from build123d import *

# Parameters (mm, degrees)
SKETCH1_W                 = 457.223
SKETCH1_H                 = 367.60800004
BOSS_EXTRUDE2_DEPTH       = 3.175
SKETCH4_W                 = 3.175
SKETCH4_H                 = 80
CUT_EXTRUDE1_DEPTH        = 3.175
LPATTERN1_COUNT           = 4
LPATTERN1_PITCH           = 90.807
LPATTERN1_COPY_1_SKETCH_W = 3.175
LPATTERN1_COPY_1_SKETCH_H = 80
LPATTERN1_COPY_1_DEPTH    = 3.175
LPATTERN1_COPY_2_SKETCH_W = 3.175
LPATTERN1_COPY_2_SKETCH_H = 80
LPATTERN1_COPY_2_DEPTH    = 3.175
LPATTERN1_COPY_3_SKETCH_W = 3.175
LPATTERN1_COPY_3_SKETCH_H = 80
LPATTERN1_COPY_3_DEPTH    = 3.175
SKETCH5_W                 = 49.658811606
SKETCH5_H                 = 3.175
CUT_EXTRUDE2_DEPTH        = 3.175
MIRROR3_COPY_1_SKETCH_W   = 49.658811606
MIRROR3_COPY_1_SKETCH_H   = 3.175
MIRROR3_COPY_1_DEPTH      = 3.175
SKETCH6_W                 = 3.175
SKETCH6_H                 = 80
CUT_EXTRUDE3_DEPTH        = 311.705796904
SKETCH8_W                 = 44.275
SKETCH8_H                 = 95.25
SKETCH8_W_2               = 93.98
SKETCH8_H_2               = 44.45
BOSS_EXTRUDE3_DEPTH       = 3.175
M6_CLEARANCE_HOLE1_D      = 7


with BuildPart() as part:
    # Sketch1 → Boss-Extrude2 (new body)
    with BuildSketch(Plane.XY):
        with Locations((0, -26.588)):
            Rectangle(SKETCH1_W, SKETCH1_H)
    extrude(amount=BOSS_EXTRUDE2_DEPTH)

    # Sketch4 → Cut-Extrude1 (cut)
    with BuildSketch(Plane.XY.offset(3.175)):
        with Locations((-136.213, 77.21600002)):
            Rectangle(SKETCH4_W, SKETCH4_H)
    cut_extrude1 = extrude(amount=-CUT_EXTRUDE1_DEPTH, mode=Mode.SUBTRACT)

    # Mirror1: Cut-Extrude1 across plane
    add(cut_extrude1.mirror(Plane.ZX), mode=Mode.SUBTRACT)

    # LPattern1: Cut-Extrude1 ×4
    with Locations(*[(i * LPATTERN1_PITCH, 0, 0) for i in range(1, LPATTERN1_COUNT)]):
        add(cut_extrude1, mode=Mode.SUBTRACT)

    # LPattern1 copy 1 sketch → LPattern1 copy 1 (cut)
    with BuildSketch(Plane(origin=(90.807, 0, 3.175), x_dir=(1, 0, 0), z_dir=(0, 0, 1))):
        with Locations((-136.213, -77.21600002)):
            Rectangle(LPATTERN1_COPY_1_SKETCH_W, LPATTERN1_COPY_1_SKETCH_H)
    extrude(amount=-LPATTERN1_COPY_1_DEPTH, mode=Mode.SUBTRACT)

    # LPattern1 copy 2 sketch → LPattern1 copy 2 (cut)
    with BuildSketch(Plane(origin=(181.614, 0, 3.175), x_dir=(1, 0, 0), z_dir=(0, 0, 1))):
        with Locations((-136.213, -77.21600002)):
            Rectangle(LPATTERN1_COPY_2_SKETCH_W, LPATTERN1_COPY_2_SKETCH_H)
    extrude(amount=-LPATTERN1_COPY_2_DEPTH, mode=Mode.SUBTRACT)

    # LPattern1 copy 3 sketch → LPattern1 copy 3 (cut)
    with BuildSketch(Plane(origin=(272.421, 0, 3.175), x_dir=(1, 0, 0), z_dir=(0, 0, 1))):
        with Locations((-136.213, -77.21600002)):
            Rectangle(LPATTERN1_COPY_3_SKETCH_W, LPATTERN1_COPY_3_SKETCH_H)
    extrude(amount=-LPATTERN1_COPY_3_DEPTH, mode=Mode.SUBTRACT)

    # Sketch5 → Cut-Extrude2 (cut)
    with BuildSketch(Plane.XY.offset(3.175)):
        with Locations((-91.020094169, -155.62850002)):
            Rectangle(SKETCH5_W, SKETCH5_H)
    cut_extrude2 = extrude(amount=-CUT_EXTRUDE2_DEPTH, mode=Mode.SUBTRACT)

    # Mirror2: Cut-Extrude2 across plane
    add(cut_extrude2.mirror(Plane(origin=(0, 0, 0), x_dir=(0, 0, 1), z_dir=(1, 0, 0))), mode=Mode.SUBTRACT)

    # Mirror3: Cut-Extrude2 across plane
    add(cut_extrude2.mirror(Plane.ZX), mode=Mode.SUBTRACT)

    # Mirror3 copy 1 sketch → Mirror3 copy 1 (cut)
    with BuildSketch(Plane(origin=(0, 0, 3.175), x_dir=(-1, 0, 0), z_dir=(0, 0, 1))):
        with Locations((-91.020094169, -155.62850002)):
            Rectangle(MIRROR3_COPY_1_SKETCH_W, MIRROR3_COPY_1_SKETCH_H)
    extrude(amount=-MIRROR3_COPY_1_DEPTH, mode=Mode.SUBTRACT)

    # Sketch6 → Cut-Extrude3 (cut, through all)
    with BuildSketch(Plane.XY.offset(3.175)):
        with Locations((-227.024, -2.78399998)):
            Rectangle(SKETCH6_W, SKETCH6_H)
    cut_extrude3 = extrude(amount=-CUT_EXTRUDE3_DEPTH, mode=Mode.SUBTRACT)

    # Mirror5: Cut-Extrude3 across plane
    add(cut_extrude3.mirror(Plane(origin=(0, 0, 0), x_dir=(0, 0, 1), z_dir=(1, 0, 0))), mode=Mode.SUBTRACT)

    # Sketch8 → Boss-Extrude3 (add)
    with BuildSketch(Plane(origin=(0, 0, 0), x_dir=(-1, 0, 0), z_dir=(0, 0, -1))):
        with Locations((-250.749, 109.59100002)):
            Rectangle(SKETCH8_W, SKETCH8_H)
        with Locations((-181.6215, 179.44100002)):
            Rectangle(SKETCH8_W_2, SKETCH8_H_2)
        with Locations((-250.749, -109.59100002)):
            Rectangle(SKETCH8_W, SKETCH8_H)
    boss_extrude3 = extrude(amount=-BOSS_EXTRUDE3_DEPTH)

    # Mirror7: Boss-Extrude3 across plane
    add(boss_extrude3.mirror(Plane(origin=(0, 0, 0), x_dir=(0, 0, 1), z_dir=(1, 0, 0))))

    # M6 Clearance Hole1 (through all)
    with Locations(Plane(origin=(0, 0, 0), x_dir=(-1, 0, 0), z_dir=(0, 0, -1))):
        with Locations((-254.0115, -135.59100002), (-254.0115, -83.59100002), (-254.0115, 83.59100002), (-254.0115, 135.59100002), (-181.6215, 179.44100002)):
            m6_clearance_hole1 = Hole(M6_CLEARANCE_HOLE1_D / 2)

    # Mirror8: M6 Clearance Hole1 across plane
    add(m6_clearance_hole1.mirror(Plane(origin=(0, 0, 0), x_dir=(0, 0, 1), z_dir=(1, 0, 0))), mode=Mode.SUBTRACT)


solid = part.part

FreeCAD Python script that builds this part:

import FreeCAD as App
import Part
import Sketcher
from FreeCAD import Vector
Q = App.Units.Quantity

doc = App.newDocument("Part")
body = doc.addObject("PartDesign::Body", "Body")

# Sketch on XY plane
sketch1 = body.newObject("Sketcher::SketchObject", "Sketch")
sketch1.AttachmentSupport = (doc.getObject("XY_Plane"), [""])
sketch1.MapMode = "FlatFace"
sketch1.addGeometry(Part.LineSegment(Vector(-228.6115, 157.216, 0), Vector(-228.6115, -210.392, 0)), False)
sketch1.addGeometry(Part.LineSegment(Vector(-228.6115, -210.392, 0), Vector(228.6115, -210.392, 0)), False)
sketch1.addGeometry(Part.LineSegment(Vector(228.6115, -210.392, 0), Vector(228.6115, 157.216, 0)), False)
sketch1.addGeometry(Part.LineSegment(Vector(228.6115, 157.216, 0), Vector(-228.6115, 157.216, 0)), False)
sketch1.addConstraint(Sketcher.Constraint("Coincident", 0, 2, 1, 1))
sketch1.addConstraint(Sketcher.Constraint("Coincident", 1, 2, 2, 1))
sketch1.addConstraint(Sketcher.Constraint("Coincident", 2, 2, 3, 1))
sketch1.addConstraint(Sketcher.Constraint("Coincident", 3, 2, 0, 1))
sketch1.addConstraint(Sketcher.Constraint("Vertical", 0))
sketch1.addConstraint(Sketcher.Constraint("Horizontal", 1))
sketch1.addConstraint(Sketcher.Constraint("Vertical", 2))
sketch1.addConstraint(Sketcher.Constraint("Horizontal", 3))
sketch1.addConstraint(Sketcher.Constraint("DistanceX", 1, 1, 1, 2, 457.223))
sketch1.addConstraint(Sketcher.Constraint("DistanceY", 0, 2, 0, 1, 367.608))
sketch1.addConstraint(Sketcher.Constraint("DistanceX", 0, 2, -1, 1, 228.6115))
sketch1.addConstraint(Sketcher.Constraint("DistanceY", 0, 2, -1, 1, 210.392))
pad1 = body.newObject("PartDesign::Pad", "Pad")
pad1.Profile = sketch1
pad1.Length = Q("0.125 in")

# Sketch on XY plane
sketch2 = body.newObject("Sketcher::SketchObject", "Sketch001")
sketch2.AttachmentSupport = (doc.getObject("XY_Plane"), [""])
sketch2.MapMode = "FlatFace"
sketch2.AttachmentOffset = App.Placement(Vector(0, 0, 0.125 * 25.4), App.Rotation())
sketch2.addGeometry(Part.LineSegment(Vector(-137.8005, 117.216, 0), Vector(-137.8005, 37.216, 0)), False)
sketch2.addGeometry(Part.LineSegment(Vector(-137.8005, 37.216, 0), Vector(-134.6255, 37.216, 0)), False)
sketch2.addGeometry(Part.LineSegment(Vector(-134.6255, 37.216, 0), Vector(-134.6255, 117.216, 0)), False)
sketch2.addGeometry(Part.LineSegment(Vector(-134.6255, 117.216, 0), Vector(-137.8005, 117.216, 0)), False)
sketch2.addConstraint(Sketcher.Constraint("Coincident", 0, 2, 1, 1))
sketch2.addConstraint(Sketcher.Constraint("Coincident", 1, 2, 2, 1))
sketch2.addConstraint(Sketcher.Constraint("Coincident", 2, 2, 3, 1))
sketch2.addConstraint(Sketcher.Constraint("Coincident", 3, 2, 0, 1))
sketch2.addConstraint(Sketcher.Constraint("Vertical", 0))
sketch2.addConstraint(Sketcher.Constraint("Horizontal", 1))
sketch2.addConstraint(Sketcher.Constraint("Vertical", 2))
sketch2.addConstraint(Sketcher.Constraint("Horizontal", 3))
sketch2.addConstraint(Sketcher.Constraint("DistanceX", 1, 1, 1, 2, Q("0.125 in")))
sketch2.addConstraint(Sketcher.Constraint("DistanceY", 0, 2, 0, 1, 80.0))
sketch2.addConstraint(Sketcher.Constraint("DistanceX", 0, 2, -1, 1, 137.8005))
sketch2.addConstraint(Sketcher.Constraint("DistanceY", -1, 1, 0, 2, 37.216))
pocket1 = body.newObject("PartDesign::Pocket", "Pocket")
pocket1.Profile = sketch2
pocket1.Length = Q("0.125 in")
doc.recompute()

mirrored = body.newObject("PartDesign::Mirrored", "Mirrored")
mirrored.Originals = [pocket1]
mirrored.MirrorPlane = (doc.getObject("XZ_Plane"), [""])
body.Tip = mirrored
doc.recompute()

linearpattern = body.newObject("PartDesign::LinearPattern", "LinearPattern")
linearpattern.Originals = [pocket1]
linearpattern.Direction = (doc.getObject("X_Axis"), [""])
linearpattern.Mode = "offset"
linearpattern.Offset = 90.807
linearpattern.Occurrences = 4
body.Tip = linearpattern

# Sketch on XY plane
sketch3 = body.newObject("Sketcher::SketchObject", "Sketch002")
sketch3.AttachmentSupport = (doc.getObject("XY_Plane"), [""])
sketch3.MapMode = "FlatFace"
sketch3.AttachmentOffset = App.Placement(Vector(0, 0, 0.125 * 25.4), App.Rotation())
sketch3.addGeometry(Part.LineSegment(Vector(-46.9935, -37.216, 0), Vector(-46.9935, -117.216, 0)), False)
sketch3.addGeometry(Part.LineSegment(Vector(-46.9935, -117.216, 0), Vector(-43.8185, -117.216, 0)), False)
sketch3.addGeometry(Part.LineSegment(Vector(-43.8185, -117.216, 0), Vector(-43.8185, -37.216, 0)), False)
sketch3.addGeometry(Part.LineSegment(Vector(-43.8185, -37.216, 0), Vector(-46.9935, -37.216, 0)), False)
sketch3.addConstraint(Sketcher.Constraint("Coincident", 0, 2, 1, 1))
sketch3.addConstraint(Sketcher.Constraint("Coincident", 1, 2, 2, 1))
sketch3.addConstraint(Sketcher.Constraint("Coincident", 2, 2, 3, 1))
sketch3.addConstraint(Sketcher.Constraint("Coincident", 3, 2, 0, 1))
sketch3.addConstraint(Sketcher.Constraint("Vertical", 0))
sketch3.addConstraint(Sketcher.Constraint("Horizontal", 1))
sketch3.addConstraint(Sketcher.Constraint("Vertical", 2))
sketch3.addConstraint(Sketcher.Constraint("Horizontal", 3))
sketch3.addConstraint(Sketcher.Constraint("DistanceX", 1, 1, 1, 2, Q("0.125 in")))
sketch3.addConstraint(Sketcher.Constraint("DistanceY", 0, 2, 0, 1, 80.0))
sketch3.addConstraint(Sketcher.Constraint("DistanceX", 0, 2, -1, 1, 46.9935))
sketch3.addConstraint(Sketcher.Constraint("DistanceY", 0, 2, -1, 1, 117.216))
pocket2 = body.newObject("PartDesign::Pocket", "Pocket001")
pocket2.Profile = sketch3
pocket2.Length = Q("0.125 in")

# Sketch on XY plane
sketch4 = body.newObject("Sketcher::SketchObject", "Sketch003")
sketch4.AttachmentSupport = (doc.getObject("XY_Plane"), [""])
sketch4.MapMode = "FlatFace"
sketch4.AttachmentOffset = App.Placement(Vector(0, 0, 0.125 * 25.4), App.Rotation())
sketch4.addGeometry(Part.LineSegment(Vector(43.8135, -37.216, 0), Vector(43.8135, -117.216, 0)), False)
sketch4.addGeometry(Part.LineSegment(Vector(43.8135, -117.216, 0), Vector(46.9885, -117.216, 0)), False)
sketch4.addGeometry(Part.LineSegment(Vector(46.9885, -117.216, 0), Vector(46.9885, -37.216, 0)), False)
sketch4.addGeometry(Part.LineSegment(Vector(46.9885, -37.216, 0), Vector(43.8135, -37.216, 0)), False)
sketch4.addConstraint(Sketcher.Constraint("Coincident", 0, 2, 1, 1))
sketch4.addConstraint(Sketcher.Constraint("Coincident", 1, 2, 2, 1))
sketch4.addConstraint(Sketcher.Constraint("Coincident", 2, 2, 3, 1))
sketch4.addConstraint(Sketcher.Constraint("Coincident", 3, 2, 0, 1))
sketch4.addConstraint(Sketcher.Constraint("Vertical", 0))
sketch4.addConstraint(Sketcher.Constraint("Horizontal", 1))
sketch4.addConstraint(Sketcher.Constraint("Vertical", 2))
sketch4.addConstraint(Sketcher.Constraint("Horizontal", 3))
sketch4.addConstraint(Sketcher.Constraint("DistanceX", 1, 1, 1, 2, Q("0.125 in")))
sketch4.addConstraint(Sketcher.Constraint("DistanceY", 0, 2, 0, 1, 80.0))
sketch4.addConstraint(Sketcher.Constraint("DistanceX", -1, 1, 0, 2, 43.8135))
sketch4.addConstraint(Sketcher.Constraint("DistanceY", 0, 2, -1, 1, 117.216))
pocket3 = body.newObject("PartDesign::Pocket", "Pocket002")
pocket3.Profile = sketch4
pocket3.Length = Q("0.125 in")

# Sketch on XY plane
sketch5 = body.newObject("Sketcher::SketchObject", "Sketch004")
sketch5.AttachmentSupport = (doc.getObject("XY_Plane"), [""])
sketch5.MapMode = "FlatFace"
sketch5.AttachmentOffset = App.Placement(Vector(0, 0, 0.125 * 25.4), App.Rotation())
sketch5.addGeometry(Part.LineSegment(Vector(134.6205, -37.216, 0), Vector(134.6205, -117.216, 0)), False)
sketch5.addGeometry(Part.LineSegment(Vector(134.6205, -117.216, 0), Vector(137.7955, -117.216, 0)), False)
sketch5.addGeometry(Part.LineSegment(Vector(137.7955, -117.216, 0), Vector(137.7955, -37.216, 0)), False)
sketch5.addGeometry(Part.LineSegment(Vector(137.7955, -37.216, 0), Vector(134.6205, -37.216, 0)), False)
sketch5.addConstraint(Sketcher.Constraint("Coincident", 0, 2, 1, 1))
sketch5.addConstraint(Sketcher.Constraint("Coincident", 1, 2, 2, 1))
sketch5.addConstraint(Sketcher.Constraint("Coincident", 2, 2, 3, 1))
sketch5.addConstraint(Sketcher.Constraint("Coincident", 3, 2, 0, 1))
sketch5.addConstraint(Sketcher.Constraint("Vertical", 0))
sketch5.addConstraint(Sketcher.Constraint("Horizontal", 1))
sketch5.addConstraint(Sketcher.Constraint("Vertical", 2))
sketch5.addConstraint(Sketcher.Constraint("Horizontal", 3))
sketch5.addConstraint(Sketcher.Constraint("DistanceX", 1, 1, 1, 2, Q("0.125 in")))
sketch5.addConstraint(Sketcher.Constraint("DistanceY", 0, 2, 0, 1, 80.0))
sketch5.addConstraint(Sketcher.Constraint("DistanceX", -1, 1, 0, 2, 134.6205))
sketch5.addConstraint(Sketcher.Constraint("DistanceY", 0, 2, -1, 1, 117.216))
pocket4 = body.newObject("PartDesign::Pocket", "Pocket003")
pocket4.Profile = sketch5
pocket4.Length = Q("0.125 in")

# Sketch on XY plane
sketch6 = body.newObject("Sketcher::SketchObject", "Sketch005")
sketch6.AttachmentSupport = (doc.getObject("XY_Plane"), [""])
sketch6.MapMode = "FlatFace"
sketch6.AttachmentOffset = App.Placement(Vector(0, 0, 0.125 * 25.4), App.Rotation())
sketch6.addGeometry(Part.LineSegment(Vector(-115.8495, -154.041, 0), Vector(-115.8495, -157.216, 0)), False)
sketch6.addGeometry(Part.LineSegment(Vector(-115.8495, -157.216, 0), Vector(-66.190688, -157.216, 0)), False)
sketch6.addGeometry(Part.LineSegment(Vector(-66.190688, -157.216, 0), Vector(-66.190688, -154.041, 0)), False)
sketch6.addGeometry(Part.LineSegment(Vector(-66.190688, -154.041, 0), Vector(-115.8495, -154.041, 0)), False)
sketch6.addConstraint(Sketcher.Constraint("Coincident", 0, 2, 1, 1))
sketch6.addConstraint(Sketcher.Constraint("Coincident", 1, 2, 2, 1))
sketch6.addConstraint(Sketcher.Constraint("Coincident", 2, 2, 3, 1))
sketch6.addConstraint(Sketcher.Constraint("Coincident", 3, 2, 0, 1))
sketch6.addConstraint(Sketcher.Constraint("Vertical", 0))
sketch6.addConstraint(Sketcher.Constraint("Horizontal", 1))
sketch6.addConstraint(Sketcher.Constraint("Vertical", 2))
sketch6.addConstraint(Sketcher.Constraint("Horizontal", 3))
sketch6.addConstraint(Sketcher.Constraint("DistanceY", 0, 2, 0, 1, Q("0.125 in")))
sketch6.addConstraint(Sketcher.Constraint("DistanceX", 1, 1, 1, 2, 49.658812))
sketch6.addConstraint(Sketcher.Constraint("DistanceX", 0, 2, -1, 1, 115.8495))
sketch6.addConstraint(Sketcher.Constraint("DistanceY", 0, 2, -1, 1, 157.216))
pocket5 = body.newObject("PartDesign::Pocket", "Pocket004")
pocket5.Profile = sketch6
pocket5.Length = Q("0.125 in")
doc.recompute()

mirrored2 = body.newObject("PartDesign::Mirrored", "Mirrored001")
mirrored2.Originals = [pocket5]
mirrored2.MirrorPlane = (doc.getObject("YZ_Plane"), [""])
body.Tip = mirrored2
doc.recompute()

mirrored3 = body.newObject("PartDesign::Mirrored", "Mirrored002")
mirrored3.Originals = [pocket5]
mirrored3.MirrorPlane = (doc.getObject("XZ_Plane"), [""])
body.Tip = mirrored3

# Sketch on XY plane
sketch7 = body.newObject("Sketcher::SketchObject", "Sketch006")
sketch7.AttachmentSupport = (doc.getObject("XY_Plane"), [""])
sketch7.MapMode = "FlatFace"
sketch7.AttachmentOffset = App.Placement(Vector(0, 0, 0.125 * 25.4), App.Rotation())
sketch7.addGeometry(Part.LineSegment(Vector(115.8495, 154.041, 0), Vector(115.8495, 157.216, 0)), False)
sketch7.addGeometry(Part.LineSegment(Vector(115.8495, 157.216, 0), Vector(66.190688, 157.216, 0)), False)
sketch7.addGeometry(Part.LineSegment(Vector(66.190688, 157.216, 0), Vector(66.190688, 154.041, 0)), False)
sketch7.addGeometry(Part.LineSegment(Vector(66.190688, 154.041, 0), Vector(115.8495, 154.041, 0)), False)
sketch7.addConstraint(Sketcher.Constraint("Coincident", 0, 2, 1, 1))
sketch7.addConstraint(Sketcher.Constraint("Coincident", 1, 2, 2, 1))
sketch7.addConstraint(Sketcher.Constraint("Coincident", 2, 2, 3, 1))
sketch7.addConstraint(Sketcher.Constraint("Coincident", 3, 2, 0, 1))
sketch7.addConstraint(Sketcher.Constraint("Vertical", 0))
sketch7.addConstraint(Sketcher.Constraint("Horizontal", 1))
sketch7.addConstraint(Sketcher.Constraint("Vertical", 2))
sketch7.addConstraint(Sketcher.Constraint("Horizontal", 3))
sketch7.addConstraint(Sketcher.Constraint("DistanceY", 0, 1, 0, 2, Q("0.125 in")))
sketch7.addConstraint(Sketcher.Constraint("DistanceX", 1, 2, 1, 1, 49.658812))
sketch7.addConstraint(Sketcher.Constraint("DistanceX", -1, 1, 0, 2, 115.8495))
sketch7.addConstraint(Sketcher.Constraint("DistanceY", -1, 1, 0, 2, 157.216))
pocket6 = body.newObject("PartDesign::Pocket", "Pocket005")
pocket6.Profile = sketch7
pocket6.Length = Q("0.125 in")

# Sketch on XY plane
sketch8 = body.newObject("Sketcher::SketchObject", "Sketch007")
sketch8.AttachmentSupport = (doc.getObject("XY_Plane"), [""])
sketch8.MapMode = "FlatFace"
sketch8.AttachmentOffset = App.Placement(Vector(0, 0, 0.125 * 25.4), App.Rotation())
sketch8.addGeometry(Part.LineSegment(Vector(-228.6115, 37.216, 0), Vector(-228.6115, -42.784, 0)), False)
sketch8.addGeometry(Part.LineSegment(Vector(-228.6115, -42.784, 0), Vector(-225.4365, -42.784, 0)), False)
sketch8.addGeometry(Part.LineSegment(Vector(-225.4365, -42.784, 0), Vector(-225.4365, 37.216, 0)), False)
sketch8.addGeometry(Part.LineSegment(Vector(-225.4365, 37.216, 0), Vector(-228.6115, 37.216, 0)), False)
sketch8.addConstraint(Sketcher.Constraint("Coincident", 0, 2, 1, 1))
sketch8.addConstraint(Sketcher.Constraint("Coincident", 1, 2, 2, 1))
sketch8.addConstraint(Sketcher.Constraint("Coincident", 2, 2, 3, 1))
sketch8.addConstraint(Sketcher.Constraint("Coincident", 3, 2, 0, 1))
sketch8.addConstraint(Sketcher.Constraint("Vertical", 0))
sketch8.addConstraint(Sketcher.Constraint("Horizontal", 1))
sketch8.addConstraint(Sketcher.Constraint("Vertical", 2))
sketch8.addConstraint(Sketcher.Constraint("Horizontal", 3))
sketch8.addConstraint(Sketcher.Constraint("DistanceX", 1, 1, 1, 2, Q("0.125 in")))
sketch8.addConstraint(Sketcher.Constraint("DistanceY", 0, 2, 0, 1, 80.0))
sketch8.addConstraint(Sketcher.Constraint("DistanceX", 0, 2, -1, 1, 228.6115))
sketch8.addConstraint(Sketcher.Constraint("DistanceY", 0, 2, -1, 1, 42.784))
pocket7 = body.newObject("PartDesign::Pocket", "Pocket006")
pocket7.Profile = sketch8
pocket7.Type = "ThroughAll"
doc.recompute()

mirrored4 = body.newObject("PartDesign::Mirrored", "Mirrored003")
mirrored4.Originals = [pocket7]
mirrored4.MirrorPlane = (doc.getObject("YZ_Plane"), [""])
body.Tip = mirrored4

# Sketch on XY plane
sketch9 = body.newObject("Sketcher::SketchObject", "Sketch008")
sketch9.AttachmentSupport = (doc.getObject("XY_Plane"), [""])
sketch9.MapMode = "FlatFace"
sketch9.addGeometry(Part.LineSegment(Vector(272.8865, 157.216, 0), Vector(272.8865, 61.966, 0)), False)
sketch9.addGeometry(Part.LineSegment(Vector(272.8865, 61.966, 0), Vector(228.6115, 61.966, 0)), False)
sketch9.addGeometry(Part.LineSegment(Vector(228.6115, 61.966, 0), Vector(228.6115, 157.216, 0)), False)
sketch9.addGeometry(Part.LineSegment(Vector(228.6115, 157.216, 0), Vector(272.8865, 157.216, 0)), False)
sketch9.addGeometry(Part.LineSegment(Vector(228.6115, 201.666, 0), Vector(228.6115, 157.216, 0)), False)
sketch9.addGeometry(Part.LineSegment(Vector(228.6115, 157.216, 0), Vector(134.6315, 157.216, 0)), False)
sketch9.addGeometry(Part.LineSegment(Vector(134.6315, 157.216, 0), Vector(134.6315, 201.666, 0)), False)
sketch9.addGeometry(Part.LineSegment(Vector(134.6315, 201.666, 0), Vector(228.6115, 201.666, 0)), False)
sketch9.addGeometry(Part.LineSegment(Vector(272.8865, -61.966, 0), Vector(272.8865, -157.216, 0)), False)
sketch9.addGeometry(Part.LineSegment(Vector(272.8865, -157.216, 0), Vector(228.6115, -157.216, 0)), False)
sketch9.addGeometry(Part.LineSegment(Vector(228.6115, -157.216, 0), Vector(228.6115, -61.966, 0)), False)
sketch9.addGeometry(Part.LineSegment(Vector(228.6115, -61.966, 0), Vector(272.8865, -61.966, 0)), False)
sketch9.addConstraint(Sketcher.Constraint("Coincident", 0, 2, 1, 1))
sketch9.addConstraint(Sketcher.Constraint("Coincident", 1, 2, 2, 1))
sketch9.addConstraint(Sketcher.Constraint("Coincident", 2, 2, 3, 1))
sketch9.addConstraint(Sketcher.Constraint("Coincident", 3, 2, 0, 1))
sketch9.addConstraint(Sketcher.Constraint("Coincident", 4, 2, 5, 1))
sketch9.addConstraint(Sketcher.Constraint("Coincident", 5, 2, 6, 1))
sketch9.addConstraint(Sketcher.Constraint("Coincident", 6, 2, 7, 1))
sketch9.addConstraint(Sketcher.Constraint("Coincident", 7, 2, 4, 1))
sketch9.addConstraint(Sketcher.Constraint("Coincident", 8, 2, 9, 1))
sketch9.addConstraint(Sketcher.Constraint("Coincident", 9, 2, 10, 1))
sketch9.addConstraint(Sketcher.Constraint("Coincident", 10, 2, 11, 1))
sketch9.addConstraint(Sketcher.Constraint("Coincident", 11, 2, 8, 1))
sketch9.addConstraint(Sketcher.Constraint("Vertical", 0))
sketch9.addConstraint(Sketcher.Constraint("Horizontal", 1))
sketch9.addConstraint(Sketcher.Constraint("Vertical", 2))
sketch9.addConstraint(Sketcher.Constraint("Horizontal", 3))
sketch9.addConstraint(Sketcher.Constraint("Vertical", 4))
sketch9.addConstraint(Sketcher.Constraint("Horizontal", 5))
sketch9.addConstraint(Sketcher.Constraint("Vertical", 6))
sketch9.addConstraint(Sketcher.Constraint("Horizontal", 7))
sketch9.addConstraint(Sketcher.Constraint("Vertical", 8))
sketch9.addConstraint(Sketcher.Constraint("Horizontal", 9))
sketch9.addConstraint(Sketcher.Constraint("Vertical", 10))
sketch9.addConstraint(Sketcher.Constraint("Horizontal", 11))
sketch9.addConstraint(Sketcher.Constraint("Coincident", 4, 2, 2, 2))
sketch9.addConstraint(Sketcher.Constraint("Symmetric", 3, 2, 8, 2, -1))
sketch9.addConstraint(Sketcher.Constraint("Symmetric", 1, 2, 10, 2, -1))
sketch9.addConstraint(Sketcher.Constraint("DistanceX", 5, 2, 5, 1, Q("3.7 in")))
sketch9.addConstraint(Sketcher.Constraint("DistanceY", 0, 2, 0, 1, Q("3.75 in")))
sketch9.addConstraint(Sketcher.Constraint("DistanceY", 4, 2, 4, 1, Q("1.75 in")))
sketch9.addConstraint(Sketcher.Constraint("DistanceX", 1, 2, 1, 1, 44.275))
sketch9.addConstraint(Sketcher.Constraint("DistanceX", -1, 1, 0, 2, 272.8865))
sketch9.addConstraint(Sketcher.Constraint("DistanceY", -1, 1, 0, 2, 61.966))
pad2 = body.newObject("PartDesign::Pad", "Pad001")
pad2.Profile = sketch9
pad2.Length = Q("0.125 in")
doc.recompute()

mirrored5 = body.newObject("PartDesign::Mirrored", "Mirrored004")
mirrored5.Originals = [pad2]
mirrored5.MirrorPlane = (doc.getObject("YZ_Plane"), [""])
body.Tip = mirrored5

# Sketch on XY plane
sketch10 = body.newObject("Sketcher::SketchObject", "Sketch009")
sketch10.AttachmentSupport = (doc.getObject("XY_Plane"), [""])
sketch10.MapMode = "FlatFace"
sketch10.addGeometry(Part.Circle(Vector(254.0115, -135.591, 0), Vector(0, 0, 1), 3.5), False)
sketch10.addGeometry(Part.Circle(Vector(254.0115, -83.591, 0), Vector(0, 0, 1), 3.5), False)
sketch10.addGeometry(Part.Circle(Vector(254.0115, 83.591, 0), Vector(0, 0, 1), 3.5), False)
sketch10.addGeometry(Part.Circle(Vector(254.0115, 135.591, 0), Vector(0, 0, 1), 3.5), False)
sketch10.addGeometry(Part.Circle(Vector(181.6215, 179.441, 0), Vector(0, 0, 1), 3.5), False)
sketch10.addConstraint(Sketcher.Constraint("Equal", 0, 1))
sketch10.addConstraint(Sketcher.Constraint("Equal", 1, 2))
sketch10.addConstraint(Sketcher.Constraint("Equal", 2, 3))
sketch10.addConstraint(Sketcher.Constraint("Equal", 3, 4))
sketch10.addConstraint(Sketcher.Constraint("Symmetric", 1, 3, 2, 3, -1))
sketch10.addConstraint(Sketcher.Constraint("Symmetric", 0, 3, 3, 3, -1))
sketch10.addConstraint(Sketcher.Constraint("Vertical", 0, 3, 1, 3))
sketch10.addConstraint(Sketcher.Constraint("Diameter", 0, 7.0))
sketch10.addConstraint(Sketcher.Constraint("DistanceX", 4, 3, 3, 3, Q("2.85 in")))
sketch10.addConstraint(Sketcher.Constraint("DistanceX", -1, 1, 0, 3, 254.0115))
sketch10.addConstraint(Sketcher.Constraint("DistanceY", 0, 3, -1, 1, 135.591))
sketch10.addConstraint(Sketcher.Constraint("DistanceY", 1, 3, -1, 1, 83.591))
sketch10.addConstraint(Sketcher.Constraint("DistanceY", -1, 1, 4, 3, 179.441))
doc.recompute()
hole = body.newObject("PartDesign::Hole", "Hole")
hole.Profile = sketch10
hole.ThreadType = "None"
hole.Diameter = 7
hole.DepthType = "ThroughAll"
hole.Reversed = True
doc.recompute()

mirrored6 = body.newObject("PartDesign::Mirrored", "Mirrored005")
mirrored6.Originals = [hole]
mirrored6.MirrorPlane = (doc.getObject("YZ_Plane"), [""])
body.Tip = mirrored6

doc.recompute()
